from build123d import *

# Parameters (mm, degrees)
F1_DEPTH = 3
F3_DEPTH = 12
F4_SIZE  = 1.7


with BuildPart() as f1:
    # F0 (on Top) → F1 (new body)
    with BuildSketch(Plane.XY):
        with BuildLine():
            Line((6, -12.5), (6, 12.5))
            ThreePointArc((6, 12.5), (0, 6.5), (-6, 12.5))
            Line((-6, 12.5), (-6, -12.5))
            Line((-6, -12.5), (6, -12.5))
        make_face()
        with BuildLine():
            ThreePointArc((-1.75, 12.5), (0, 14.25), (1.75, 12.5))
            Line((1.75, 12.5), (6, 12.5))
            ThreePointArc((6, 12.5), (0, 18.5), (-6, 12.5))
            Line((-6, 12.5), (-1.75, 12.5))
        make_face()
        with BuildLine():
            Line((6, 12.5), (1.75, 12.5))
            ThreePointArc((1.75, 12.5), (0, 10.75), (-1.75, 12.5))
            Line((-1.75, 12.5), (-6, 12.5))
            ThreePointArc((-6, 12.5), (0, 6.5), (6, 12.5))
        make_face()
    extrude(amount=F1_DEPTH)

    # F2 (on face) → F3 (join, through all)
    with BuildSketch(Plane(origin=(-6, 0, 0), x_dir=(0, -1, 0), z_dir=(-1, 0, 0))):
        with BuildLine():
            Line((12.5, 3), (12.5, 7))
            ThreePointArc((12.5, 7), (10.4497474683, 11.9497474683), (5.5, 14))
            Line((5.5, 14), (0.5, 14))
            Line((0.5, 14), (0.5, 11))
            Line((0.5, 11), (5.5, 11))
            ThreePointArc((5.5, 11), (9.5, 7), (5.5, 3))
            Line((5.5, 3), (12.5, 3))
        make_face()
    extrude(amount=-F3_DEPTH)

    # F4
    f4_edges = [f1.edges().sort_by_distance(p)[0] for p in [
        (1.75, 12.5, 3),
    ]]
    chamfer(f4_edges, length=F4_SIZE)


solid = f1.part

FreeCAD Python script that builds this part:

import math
import FreeCAD as App
import Part
import Sketcher
from FreeCAD import Vector
Q = App.Units.Quantity


def edges_at(feature, points):
    """Names of the edges that pass closest to the given points."""
    edges = feature.Shape.Edges
    near = lambda p: min(range(len(edges)), key=lambda i: edges[i].distToShape(Part.Vertex(*p))[0])
    return sorted({f"Edge{near(p) + 1}" for p in points})

doc = App.newDocument("Part")
body = doc.addObject("PartDesign::Body", "Body")

# Sketch on XY plane
sketch1 = body.newObject("Sketcher::SketchObject", "Sketch")
sketch1.AttachmentSupport = (doc.getObject("XY_Plane"), [""])
sketch1.MapMode = "FlatFace"
sketch1.addGeometry(Part.LineSegment(Vector(6, -12.5, 0), Vector(6, 12.5, 0)), False)
sketch1.addGeometry(Part.ArcOfCircle(Part.Circle(Vector(0, 12.5, 0), Vector(0, 0, 1), 6), math.radians(0), math.radians(180)), False)
sketch1.addGeometry(Part.LineSegment(Vector(-6, 12.5, 0), Vector(-6, -12.5, 0)), False)
sketch1.addGeometry(Part.LineSegment(Vector(-6, -12.5, 0), Vector(6, -12.5, 0)), False)
sketch1.addGeometry(Part.Circle(Vector(0, 12.5, 0), Vector(0, 0, 1), 1.75), False)
sketch1.addConstraint(Sketcher.Constraint("Tangent", 0, 2, 1, 1))
sketch1.addConstraint(Sketcher.Constraint("Tangent", 1, 2, 2, 1))
sketch1.addConstraint(Sketcher.Constraint("Coincident", 2, 2, 3, 1))
sketch1.addConstraint(Sketcher.Constraint("Coincident", 3, 2, 0, 1))
sketch1.addConstraint(Sketcher.Constraint("Vertical", 0))
sketch1.addConstraint(Sketcher.Constraint("Vertical", 2))
sketch1.addConstraint(Sketcher.Constraint("Horizontal", 3))
sketch1.addConstraint(Sketcher.Constraint("Coincident", 4, 3, 1, 3))
sketch1.addConstraint(Sketcher.Constraint("Symmetric", 0, 2, 2, 2, -1, 1))
sketch1.addConstraint(Sketcher.Constraint("Radius", 1, Q("6 mm")))
sketch1.addConstraint(Sketcher.Constraint("Diameter", 4, Q("3.5 mm")))
sketch1.addConstraint(Sketcher.Constraint("DistanceY", 0, 1, 0, 2, Q("25 mm")))
pad1 = body.newObject("PartDesign::Pad", "Pad")
pad1.Profile = sketch1
pad1.Length = 3

# Sketch on YZ plane
sketch2 = body.newObject("Sketcher::SketchObject", "Sketch001")
sketch2.AttachmentSupport = (doc.getObject("YZ_Plane"), [""])
sketch2.MapMode = "FlatFace"
sketch2.AttachmentOffset = App.Placement(Vector(0, 0, -6), App.Rotation())
sketch2.addGeometry(Part.LineSegment(Vector(-12.5, 3, 0), Vector(-12.5, 7, 0)), False)
sketch2.addGeometry(Part.ArcOfCircle(Part.Circle(Vector(-5.5, 7, 0), Vector(0, 0, 1), 7), math.radians(90), math.radians(180)), False)
sketch2.addGeometry(Part.LineSegment(Vector(-5.5, 14, 0), Vector(-0.5, 14, 0)), False)
sketch2.addGeometry(Part.LineSegment(Vector(-0.5, 14, 0), Vector(-0.5, 11, 0)), False)
sketch2.addGeometry(Part.LineSegment(Vector(-0.5, 11, 0), Vector(-5.5, 11, 0)), False)
sketch2.addGeometry(Part.ArcOfCircle(Part.Circle(Vector(-5.5, 7, 0), Vector(0, 0, 1), 4), math.radians(90), math.radians(270)), False)
sketch2.addGeometry(Part.LineSegment(Vector(-5.5, 3, 0), Vector(-12.5, 3, 0)), False)
sketch2.addConstraint(Sketcher.Constraint("Tangent", 0, 2, 1, 2))
sketch2.addConstraint(Sketcher.Constraint("Tangent", 1, 1, 2, 1))
sketch2.addConstraint(Sketcher.Constraint("Coincident", 2, 2, 3, 1))
sketch2.addConstraint(Sketcher.Constraint("Coincident", 3, 2, 4, 1))
sketch2.addConstraint(Sketcher.Constraint("Tangent", 4, 2, 5, 1))
sketch2.addConstraint(Sketcher.Constraint("Tangent", 5, 2, 6, 1))
sketch2.addConstraint(Sketcher.Constraint("Coincident", 6, 2, 0, 1))
sketch2.addConstraint(Sketcher.Constraint("Vertical", 0))
sketch2.addConstraint(Sketcher.Constraint("Horizontal", 2))
sketch2.addConstraint(Sketcher.Constraint("Vertical", 3))
sketch2.addConstraint(Sketcher.Constraint("Horizontal", 4))
sketch2.addConstraint(Sketcher.Constraint("Horizontal", 6))
sketch2.addConstraint(Sketcher.Constraint("Coincident", 5, 3, 1, 3))
sketch2.addConstraint(Sketcher.Constraint("Radius", 1, Q("7 mm")))
sketch2.addConstraint(Sketcher.Constraint("Radius", 5, Q("4 mm")))
sketch2.addConstraint(Sketcher.Constraint("DistanceX", 2, 1, 2, 2, Q("5 mm")))
sketch2.addConstraint(Sketcher.Constraint("DistanceY", -1, 1, 1, 3, Q("7 mm")))
sketch2.addConstraint(Sketcher.Constraint("DistanceX", 1, 3, -1, 1, Q("5.5 mm")))
pad2 = body.newObject("PartDesign::Pad", "Pad001")
pad2.Profile = sketch2
pad2.Length = 12
doc.recompute()

chamfer = body.newObject("PartDesign::Chamfer", "Chamfer")
chamfer.Base = (pad2, edges_at(pad2, [(1.75, 12.5, 3)]))
chamfer.Size = 1.7

doc.recompute()
